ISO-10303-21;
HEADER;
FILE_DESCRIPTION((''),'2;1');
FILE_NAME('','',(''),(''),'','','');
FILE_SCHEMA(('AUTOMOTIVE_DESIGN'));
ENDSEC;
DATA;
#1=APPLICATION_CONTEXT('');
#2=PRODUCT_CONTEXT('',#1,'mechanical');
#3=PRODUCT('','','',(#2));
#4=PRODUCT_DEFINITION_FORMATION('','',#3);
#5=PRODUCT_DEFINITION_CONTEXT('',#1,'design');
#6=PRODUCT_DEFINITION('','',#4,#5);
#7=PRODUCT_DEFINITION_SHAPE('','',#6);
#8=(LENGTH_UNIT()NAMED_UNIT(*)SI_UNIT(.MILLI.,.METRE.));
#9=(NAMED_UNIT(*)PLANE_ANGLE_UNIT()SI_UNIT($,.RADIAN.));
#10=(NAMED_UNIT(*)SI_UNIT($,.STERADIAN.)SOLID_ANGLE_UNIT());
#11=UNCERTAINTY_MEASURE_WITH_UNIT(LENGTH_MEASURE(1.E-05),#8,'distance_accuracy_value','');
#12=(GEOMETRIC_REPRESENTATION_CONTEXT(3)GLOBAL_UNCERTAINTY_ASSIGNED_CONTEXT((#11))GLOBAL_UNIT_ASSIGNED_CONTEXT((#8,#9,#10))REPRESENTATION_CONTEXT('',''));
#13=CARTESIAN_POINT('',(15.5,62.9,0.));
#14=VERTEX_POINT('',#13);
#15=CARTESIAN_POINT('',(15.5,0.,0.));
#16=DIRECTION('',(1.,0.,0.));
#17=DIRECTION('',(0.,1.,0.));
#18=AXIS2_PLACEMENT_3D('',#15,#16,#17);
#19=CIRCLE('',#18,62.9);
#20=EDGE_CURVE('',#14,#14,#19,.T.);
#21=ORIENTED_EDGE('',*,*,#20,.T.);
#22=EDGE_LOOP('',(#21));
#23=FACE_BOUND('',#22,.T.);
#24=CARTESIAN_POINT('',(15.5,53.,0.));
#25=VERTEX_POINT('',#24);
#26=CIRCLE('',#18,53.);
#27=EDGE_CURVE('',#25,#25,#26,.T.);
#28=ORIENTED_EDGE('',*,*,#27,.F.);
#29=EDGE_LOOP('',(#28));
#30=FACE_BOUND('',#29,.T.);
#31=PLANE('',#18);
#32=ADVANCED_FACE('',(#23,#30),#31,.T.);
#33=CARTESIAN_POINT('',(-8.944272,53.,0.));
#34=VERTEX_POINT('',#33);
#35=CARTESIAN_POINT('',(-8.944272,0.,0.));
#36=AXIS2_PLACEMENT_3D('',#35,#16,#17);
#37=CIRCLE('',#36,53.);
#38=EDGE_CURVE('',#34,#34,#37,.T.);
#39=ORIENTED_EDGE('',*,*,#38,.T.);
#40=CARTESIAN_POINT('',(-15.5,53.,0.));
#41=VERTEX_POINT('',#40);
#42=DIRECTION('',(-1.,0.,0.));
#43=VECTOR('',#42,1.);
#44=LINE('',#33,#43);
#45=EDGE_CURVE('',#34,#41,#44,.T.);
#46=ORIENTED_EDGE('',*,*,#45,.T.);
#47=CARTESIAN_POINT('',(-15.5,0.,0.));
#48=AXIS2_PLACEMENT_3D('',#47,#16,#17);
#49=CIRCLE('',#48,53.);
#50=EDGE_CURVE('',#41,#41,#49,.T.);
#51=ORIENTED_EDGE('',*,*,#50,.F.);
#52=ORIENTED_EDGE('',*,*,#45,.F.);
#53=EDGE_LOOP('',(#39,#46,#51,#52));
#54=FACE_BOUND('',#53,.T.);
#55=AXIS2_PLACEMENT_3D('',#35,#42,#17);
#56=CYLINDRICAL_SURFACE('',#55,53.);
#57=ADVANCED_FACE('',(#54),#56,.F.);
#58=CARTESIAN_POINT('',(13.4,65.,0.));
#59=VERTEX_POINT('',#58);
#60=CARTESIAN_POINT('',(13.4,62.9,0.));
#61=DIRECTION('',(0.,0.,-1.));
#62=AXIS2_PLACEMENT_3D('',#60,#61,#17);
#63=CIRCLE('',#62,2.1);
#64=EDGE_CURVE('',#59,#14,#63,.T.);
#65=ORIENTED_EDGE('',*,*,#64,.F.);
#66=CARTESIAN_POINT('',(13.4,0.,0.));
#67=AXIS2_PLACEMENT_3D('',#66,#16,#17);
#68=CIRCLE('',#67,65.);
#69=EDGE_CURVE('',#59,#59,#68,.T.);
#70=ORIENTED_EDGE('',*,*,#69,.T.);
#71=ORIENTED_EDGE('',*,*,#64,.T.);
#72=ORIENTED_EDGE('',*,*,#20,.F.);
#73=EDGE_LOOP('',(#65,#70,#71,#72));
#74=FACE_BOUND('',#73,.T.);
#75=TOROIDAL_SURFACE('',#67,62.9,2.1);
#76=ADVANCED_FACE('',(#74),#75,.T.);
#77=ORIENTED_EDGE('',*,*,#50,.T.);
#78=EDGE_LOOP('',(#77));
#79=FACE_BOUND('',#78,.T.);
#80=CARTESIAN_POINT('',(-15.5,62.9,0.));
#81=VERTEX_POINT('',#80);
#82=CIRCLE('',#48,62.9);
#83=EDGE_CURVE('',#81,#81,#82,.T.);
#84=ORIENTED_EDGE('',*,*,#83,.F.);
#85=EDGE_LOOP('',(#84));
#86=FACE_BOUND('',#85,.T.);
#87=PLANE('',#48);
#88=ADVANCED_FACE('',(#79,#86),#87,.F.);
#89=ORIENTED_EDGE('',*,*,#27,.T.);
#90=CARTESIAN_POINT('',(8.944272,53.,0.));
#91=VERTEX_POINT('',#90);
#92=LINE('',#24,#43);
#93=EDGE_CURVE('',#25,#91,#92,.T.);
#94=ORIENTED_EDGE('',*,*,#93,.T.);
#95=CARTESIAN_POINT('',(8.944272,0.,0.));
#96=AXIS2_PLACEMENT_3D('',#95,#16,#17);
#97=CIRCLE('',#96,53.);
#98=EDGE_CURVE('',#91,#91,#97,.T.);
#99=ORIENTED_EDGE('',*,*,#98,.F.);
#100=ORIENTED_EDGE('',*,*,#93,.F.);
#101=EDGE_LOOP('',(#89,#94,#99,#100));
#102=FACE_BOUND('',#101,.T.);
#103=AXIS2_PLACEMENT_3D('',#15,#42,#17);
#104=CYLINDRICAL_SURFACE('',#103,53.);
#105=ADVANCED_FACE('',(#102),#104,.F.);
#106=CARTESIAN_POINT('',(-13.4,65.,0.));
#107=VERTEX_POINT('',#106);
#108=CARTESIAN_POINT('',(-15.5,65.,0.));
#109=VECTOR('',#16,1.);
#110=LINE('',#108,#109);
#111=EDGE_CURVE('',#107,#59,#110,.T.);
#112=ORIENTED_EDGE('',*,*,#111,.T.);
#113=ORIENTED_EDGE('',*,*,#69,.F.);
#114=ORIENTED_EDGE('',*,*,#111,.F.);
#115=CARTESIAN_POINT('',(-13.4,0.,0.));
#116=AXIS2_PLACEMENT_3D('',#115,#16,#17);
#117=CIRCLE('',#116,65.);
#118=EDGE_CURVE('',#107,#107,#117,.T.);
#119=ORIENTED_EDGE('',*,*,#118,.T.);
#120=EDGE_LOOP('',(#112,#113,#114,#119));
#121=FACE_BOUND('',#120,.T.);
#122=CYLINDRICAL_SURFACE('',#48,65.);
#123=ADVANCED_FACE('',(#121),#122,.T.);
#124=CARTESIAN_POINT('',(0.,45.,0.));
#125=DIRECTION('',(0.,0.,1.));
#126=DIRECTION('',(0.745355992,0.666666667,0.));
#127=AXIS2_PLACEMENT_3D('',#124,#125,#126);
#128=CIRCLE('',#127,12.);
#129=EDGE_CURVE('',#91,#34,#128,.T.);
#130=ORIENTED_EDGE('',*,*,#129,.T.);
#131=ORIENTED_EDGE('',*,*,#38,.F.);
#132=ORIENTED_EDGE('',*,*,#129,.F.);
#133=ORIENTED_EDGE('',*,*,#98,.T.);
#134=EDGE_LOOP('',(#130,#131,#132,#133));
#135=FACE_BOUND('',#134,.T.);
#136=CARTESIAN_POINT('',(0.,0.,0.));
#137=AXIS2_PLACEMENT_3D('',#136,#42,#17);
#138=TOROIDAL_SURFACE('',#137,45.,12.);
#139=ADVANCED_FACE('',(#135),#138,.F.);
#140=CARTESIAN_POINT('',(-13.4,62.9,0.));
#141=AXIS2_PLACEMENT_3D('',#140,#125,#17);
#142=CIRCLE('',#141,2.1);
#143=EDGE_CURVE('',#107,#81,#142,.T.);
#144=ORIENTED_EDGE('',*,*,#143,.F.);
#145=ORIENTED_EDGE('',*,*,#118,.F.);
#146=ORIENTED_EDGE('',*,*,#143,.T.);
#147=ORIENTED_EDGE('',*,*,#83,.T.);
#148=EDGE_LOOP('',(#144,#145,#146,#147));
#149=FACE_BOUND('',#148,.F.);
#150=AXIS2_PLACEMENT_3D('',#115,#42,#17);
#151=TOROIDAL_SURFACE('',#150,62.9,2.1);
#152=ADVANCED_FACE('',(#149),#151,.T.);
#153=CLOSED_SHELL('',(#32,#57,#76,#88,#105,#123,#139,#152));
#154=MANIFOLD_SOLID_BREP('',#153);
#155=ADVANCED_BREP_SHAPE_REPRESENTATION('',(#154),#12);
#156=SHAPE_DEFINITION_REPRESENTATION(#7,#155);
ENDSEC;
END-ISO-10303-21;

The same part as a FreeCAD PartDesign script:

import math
import FreeCAD as App
import Part
import Sketcher
Q = App.Units.Quantity


def edges_at(feature, points):
    """Names of the edges that pass closest to the given points."""
    edges = feature.Shape.Edges
    near = lambda p: min(range(len(edges)), key=lambda i: edges[i].distToShape(Part.Vertex(*p))[0])
    return sorted({f"Edge{near(p) + 1}" for p in points})

doc = App.newDocument("Part")
body = doc.addObject("PartDesign::Body", "Body")

sketch1 = body.newObject("Sketcher::SketchObject", "Sketch")
sketch1.AttachmentSupport = (doc.getObject("XY_Plane"), [""])
sketch1.MapMode = "FlatFace"
sketch1.addGeometry(Part.LineSegment(App.Vector(16, 65, 0), App.Vector(-16, 65, 0)), False)
sketch1.addGeometry(Part.LineSegment(App.Vector(-16, 65, 0), App.Vector(-16, 53, 0)), False)
sketch1.addGeometry(Part.LineSegment(App.Vector(-16, 53, 0), App.Vector(-9, 53, 0)), False)
sketch1.addGeometry(Part.ArcOfCircle(Part.Circle(App.Vector(0, 45, 0), App.Vector(0, 0, 1), 12), math.radians(42), math.radians(138)), False)
sketch1.addGeometry(Part.LineSegment(App.Vector(9, 53, 0), App.Vector(16, 53, 0)), False)
sketch1.addGeometry(Part.LineSegment(App.Vector(16, 53, 0), App.Vector(16, 65, 0)), False)
sketch1.addConstraint(Sketcher.Constraint("Coincident", 0, 2, 1, 1))
sketch1.addConstraint(Sketcher.Constraint("Coincident", 1, 2, 2, 1))
sketch1.addConstraint(Sketcher.Constraint("Coincident", 2, 2, 3, 2))
sketch1.addConstraint(Sketcher.Constraint("Coincident", 3, 1, 4, 1))
sketch1.addConstraint(Sketcher.Constraint("Coincident", 4, 2, 5, 1))
sketch1.addConstraint(Sketcher.Constraint("Coincident", 5, 2, 0, 1))
sketch1.addConstraint(Sketcher.Constraint("Horizontal", 0))
sketch1.addConstraint(Sketcher.Constraint("Vertical", 1))
sketch1.addConstraint(Sketcher.Constraint("Horizontal", 2))
sketch1.addConstraint(Sketcher.Constraint("Horizontal", 4))
sketch1.addConstraint(Sketcher.Constraint("Vertical", 5))
sketch1.addConstraint(Sketcher.Constraint("Symmetric", 2, 2, 3, 1, -2))
sketch1.addConstraint(Sketcher.Constraint("Equal", 2, 4))
sketch1.addConstraint(Sketcher.Constraint("Radius", 3, Q("12 mm")))
sketch1.addConstraint(Sketcher.Constraint("DistanceX", 0, 2, 0, 1, Q("31 mm")))
sketch1.addConstraint(Sketcher.Constraint("DistanceY", 1, 2, 1, 1, Q("12 mm")))
sketch1.addConstraint(Sketcher.Constraint("DistanceY", -1, 1, 3, 3, Q("45 mm")))
sketch1.addConstraint(Sketcher.Constraint("DistanceY", -1, 1, 0, 2, Q("65 mm")))
revolution = body.newObject("PartDesign::Revolution", "Revolution")
revolution.Profile = sketch1
revolution.ReferenceAxis = (sketch1, ["H_Axis"])
revolution.Angle = 360
doc.recompute()

fillet = body.newObject("PartDesign::Fillet", "Fillet")
fillet.Base = (revolution, edges_at(revolution, [(15.5, -65, 0), (-15.5, -65, 0)]))
fillet.Radius = 2.1

doc.recompute()
